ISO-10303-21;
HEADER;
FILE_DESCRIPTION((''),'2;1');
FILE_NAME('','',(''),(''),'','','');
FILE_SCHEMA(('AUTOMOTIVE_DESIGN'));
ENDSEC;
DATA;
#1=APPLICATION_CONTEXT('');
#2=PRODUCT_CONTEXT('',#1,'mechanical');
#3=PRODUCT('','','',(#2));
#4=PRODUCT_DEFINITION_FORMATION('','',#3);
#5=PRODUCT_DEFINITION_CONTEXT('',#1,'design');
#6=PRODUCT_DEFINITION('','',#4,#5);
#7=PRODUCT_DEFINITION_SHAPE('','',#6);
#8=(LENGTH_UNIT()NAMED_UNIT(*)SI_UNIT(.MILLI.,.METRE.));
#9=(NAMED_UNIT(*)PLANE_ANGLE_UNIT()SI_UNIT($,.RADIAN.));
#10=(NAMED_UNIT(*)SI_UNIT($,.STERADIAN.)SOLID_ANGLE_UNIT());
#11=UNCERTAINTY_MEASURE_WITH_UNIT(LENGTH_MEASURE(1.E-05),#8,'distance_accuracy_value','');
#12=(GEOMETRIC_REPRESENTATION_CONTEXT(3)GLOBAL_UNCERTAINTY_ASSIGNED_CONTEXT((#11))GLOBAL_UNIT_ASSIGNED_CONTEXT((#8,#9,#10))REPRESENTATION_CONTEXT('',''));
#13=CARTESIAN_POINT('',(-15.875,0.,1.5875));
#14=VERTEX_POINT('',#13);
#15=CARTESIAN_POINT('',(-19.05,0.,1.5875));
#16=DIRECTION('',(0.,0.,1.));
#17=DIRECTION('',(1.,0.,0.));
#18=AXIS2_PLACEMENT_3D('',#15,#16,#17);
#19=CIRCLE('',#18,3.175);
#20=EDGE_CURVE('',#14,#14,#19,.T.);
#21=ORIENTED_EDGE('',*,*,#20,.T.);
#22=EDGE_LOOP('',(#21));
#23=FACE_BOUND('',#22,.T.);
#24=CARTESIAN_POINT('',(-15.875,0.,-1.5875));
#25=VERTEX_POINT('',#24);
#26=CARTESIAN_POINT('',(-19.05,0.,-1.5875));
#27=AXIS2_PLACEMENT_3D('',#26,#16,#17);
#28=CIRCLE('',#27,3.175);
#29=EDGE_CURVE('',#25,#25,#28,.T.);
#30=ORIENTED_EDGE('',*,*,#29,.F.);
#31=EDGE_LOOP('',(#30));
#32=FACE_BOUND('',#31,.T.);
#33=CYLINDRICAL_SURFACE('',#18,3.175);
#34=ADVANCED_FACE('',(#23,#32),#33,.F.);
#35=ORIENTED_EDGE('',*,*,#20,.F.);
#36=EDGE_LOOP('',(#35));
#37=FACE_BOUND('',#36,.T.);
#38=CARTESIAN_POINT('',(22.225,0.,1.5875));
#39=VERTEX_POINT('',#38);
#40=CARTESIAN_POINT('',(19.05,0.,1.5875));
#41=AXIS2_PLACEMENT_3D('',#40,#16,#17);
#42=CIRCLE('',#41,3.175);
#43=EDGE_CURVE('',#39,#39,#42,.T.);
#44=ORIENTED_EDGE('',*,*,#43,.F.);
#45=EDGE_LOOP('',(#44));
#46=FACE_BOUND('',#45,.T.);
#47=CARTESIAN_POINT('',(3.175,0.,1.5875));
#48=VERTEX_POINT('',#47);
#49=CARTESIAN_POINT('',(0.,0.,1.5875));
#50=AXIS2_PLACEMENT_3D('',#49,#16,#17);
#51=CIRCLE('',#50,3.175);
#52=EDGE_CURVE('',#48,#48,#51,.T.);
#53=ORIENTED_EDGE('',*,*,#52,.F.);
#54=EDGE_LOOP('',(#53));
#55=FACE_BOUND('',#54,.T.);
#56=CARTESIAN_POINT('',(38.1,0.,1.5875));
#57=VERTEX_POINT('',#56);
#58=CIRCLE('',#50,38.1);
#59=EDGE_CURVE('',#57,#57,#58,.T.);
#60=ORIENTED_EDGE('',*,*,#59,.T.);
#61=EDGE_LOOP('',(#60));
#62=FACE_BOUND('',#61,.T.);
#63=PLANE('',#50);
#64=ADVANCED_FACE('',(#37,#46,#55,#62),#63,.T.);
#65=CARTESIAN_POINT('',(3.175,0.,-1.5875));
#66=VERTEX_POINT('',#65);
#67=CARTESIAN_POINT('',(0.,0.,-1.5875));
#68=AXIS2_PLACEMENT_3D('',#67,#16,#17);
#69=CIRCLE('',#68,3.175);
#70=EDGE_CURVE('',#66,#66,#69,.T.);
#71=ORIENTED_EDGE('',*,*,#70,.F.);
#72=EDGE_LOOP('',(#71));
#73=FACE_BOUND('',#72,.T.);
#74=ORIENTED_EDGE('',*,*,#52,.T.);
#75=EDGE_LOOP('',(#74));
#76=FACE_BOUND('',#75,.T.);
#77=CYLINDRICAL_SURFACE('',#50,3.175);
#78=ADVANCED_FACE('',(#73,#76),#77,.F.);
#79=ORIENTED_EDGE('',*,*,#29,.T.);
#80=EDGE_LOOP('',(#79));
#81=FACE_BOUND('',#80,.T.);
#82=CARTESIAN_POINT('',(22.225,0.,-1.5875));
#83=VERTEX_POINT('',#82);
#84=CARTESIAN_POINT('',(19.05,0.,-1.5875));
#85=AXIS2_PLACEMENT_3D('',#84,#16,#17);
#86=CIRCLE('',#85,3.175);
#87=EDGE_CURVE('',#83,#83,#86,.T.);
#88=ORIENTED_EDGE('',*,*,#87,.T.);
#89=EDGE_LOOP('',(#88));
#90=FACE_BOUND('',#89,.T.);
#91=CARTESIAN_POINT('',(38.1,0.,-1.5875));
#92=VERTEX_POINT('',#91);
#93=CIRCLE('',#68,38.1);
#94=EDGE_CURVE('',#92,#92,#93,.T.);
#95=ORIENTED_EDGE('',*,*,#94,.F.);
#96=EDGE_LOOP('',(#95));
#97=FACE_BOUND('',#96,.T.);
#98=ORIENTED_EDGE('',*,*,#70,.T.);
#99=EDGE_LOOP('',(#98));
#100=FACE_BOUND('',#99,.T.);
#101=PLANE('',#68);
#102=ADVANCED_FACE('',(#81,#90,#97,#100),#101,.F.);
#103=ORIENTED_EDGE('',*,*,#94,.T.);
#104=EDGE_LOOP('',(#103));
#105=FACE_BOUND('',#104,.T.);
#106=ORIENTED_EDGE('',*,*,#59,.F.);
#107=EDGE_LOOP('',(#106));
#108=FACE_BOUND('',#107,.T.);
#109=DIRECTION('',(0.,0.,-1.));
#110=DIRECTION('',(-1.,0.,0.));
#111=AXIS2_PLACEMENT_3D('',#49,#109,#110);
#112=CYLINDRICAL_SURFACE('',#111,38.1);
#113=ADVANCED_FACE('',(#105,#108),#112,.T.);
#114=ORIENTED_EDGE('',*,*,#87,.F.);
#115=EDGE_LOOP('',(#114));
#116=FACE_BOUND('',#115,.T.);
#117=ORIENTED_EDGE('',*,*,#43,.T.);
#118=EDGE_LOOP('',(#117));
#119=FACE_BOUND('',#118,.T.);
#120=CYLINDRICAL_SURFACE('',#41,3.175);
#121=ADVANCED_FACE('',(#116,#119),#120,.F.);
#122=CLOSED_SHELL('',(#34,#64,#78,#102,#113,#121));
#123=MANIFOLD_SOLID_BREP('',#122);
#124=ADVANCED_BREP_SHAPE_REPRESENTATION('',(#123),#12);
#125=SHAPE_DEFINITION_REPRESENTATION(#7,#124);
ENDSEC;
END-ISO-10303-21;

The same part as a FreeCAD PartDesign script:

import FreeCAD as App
import Part
import Sketcher
from FreeCAD import Vector
Q = App.Units.Quantity

doc = App.newDocument("Part")
body = doc.addObject("PartDesign::Body", "Body")

# Sketch on XY plane
sketch1 = doc.addObject("Sketcher::SketchObject", "Sketch")
body.addObject(sketch1)
sketch1.AttachmentSupport = (doc.XY_Plane, [""])
sketch1.MapMode = "FlatFace"
sketch1.addGeometry(Part.Circle(Vector(0, 0, 0), Vector(0, 0, 1), 38), False)
sketch1.addConstraint(Sketcher.Constraint("Coincident", 0, 3, -1, 1))
sketch1.addConstraint(Sketcher.Constraint("Diameter", 0, Q("3 in")))
pad1 = doc.addObject("PartDesign::Pad", "Pad")
body.addObject(pad1)
pad1.Profile = sketch1
pad1.Length = Q("0.125 in")
pad1.Midplane = True

# Sketch on XY plane
sketch2 = doc.addObject("Sketcher::SketchObject", "Sketch001")
body.addObject(sketch2)
sketch2.AttachmentSupport = (doc.XY_Plane, [""])
sketch2.MapMode = "FlatFace"
sketch2.AttachmentOffset = App.Placement(Vector(0, 0, 0.0625 * 25.4), App.Rotation())
sketch2.addGeometry(Part.Circle(Vector(-19.1, 0, 0), Vector(0, 0, 1), 3.2), False)
sketch2.addGeometry(Part.Circle(Vector(0, 0, 0), Vector(0, 0, 1), 3.2), False)
sketch2.addGeometry(Part.Circle(Vector(19.1, 0, 0), Vector(0, 0, 1), 3.2), False)
sketch2.addConstraint(Sketcher.Constraint("Coincident", 1, 3, -1, 1))
sketch2.addConstraint(Sketcher.Constraint("Equal", 0, 1))
sketch2.addConstraint(Sketcher.Constraint("Equal", 1, 2))
sketch2.addConstraint(Sketcher.Constraint("Symmetric", 0, 3, 2, 3, -1, 1))
sketch2.addConstraint(Sketcher.Constraint("PointOnObject", 0, 3, -1))
sketch2.addConstraint(Sketcher.Constraint("Diameter", 0, Q("0.25 in")))
sketch2.addConstraint(Sketcher.Constraint("DistanceX", 0, 3, 2, 3, Q("1.5 in")))
doc.recompute()
hole = doc.addObject("PartDesign::Hole", "Hole")
body.addObject(hole)
hole.Profile = sketch2
hole.ThreadType = "None"
hole.Diameter = Q("0.25 in")
hole.DepthType = "ThroughAll"

doc.recompute()
